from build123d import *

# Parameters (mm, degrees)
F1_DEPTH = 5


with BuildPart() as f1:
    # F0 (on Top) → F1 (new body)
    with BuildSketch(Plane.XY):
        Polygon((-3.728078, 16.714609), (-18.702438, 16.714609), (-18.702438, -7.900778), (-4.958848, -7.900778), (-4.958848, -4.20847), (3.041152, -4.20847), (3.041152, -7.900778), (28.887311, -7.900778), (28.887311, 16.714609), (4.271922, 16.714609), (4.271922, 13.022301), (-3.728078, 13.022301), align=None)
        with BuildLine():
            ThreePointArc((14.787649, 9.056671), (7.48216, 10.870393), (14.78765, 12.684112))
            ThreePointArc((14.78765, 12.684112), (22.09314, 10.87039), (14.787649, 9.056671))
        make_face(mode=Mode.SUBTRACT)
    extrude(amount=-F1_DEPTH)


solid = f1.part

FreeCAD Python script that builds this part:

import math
import FreeCAD as App
import Part
import Sketcher
Q = App.Units.Quantity


def add_polygon(sketch, points):
    """Adds a closed chain of lines whose ends are joined by coincident constraints."""
    first, n = sketch.GeometryCount, len(points)
    for a, b in zip(points, points[1:] + points[:1]):
        sketch.addGeometry(Part.LineSegment(App.Vector(*a, 0), App.Vector(*b, 0)), False)
    for i in range(n):
        sketch.addConstraint(Sketcher.Constraint("Coincident", first + i, 2, first + (i + 1) % n, 1))

doc = App.newDocument("Part")
body = doc.addObject("PartDesign::Body", "Body")

# Sketch on XY plane
sketch1 = body.newObject("Sketcher::SketchObject", "Sketch")
sketch1.AttachmentSupport = (doc.getObject("XY_Plane"), [""])
sketch1.MapMode = "FlatFace"
add_polygon(sketch1, [(-3.728078, 16.714609), (-18.702438, 16.714609), (-18.702438, -7.900778), (-4.958848, -7.900778), (-4.958848, -4.20847), (3.041152, -4.20847), (3.041152, -7.900778), (28.887311, -7.900778), (28.887311, 16.714609), (4.271922, 16.714609), (4.271922, 13.022301), (-3.728078, 13.022301)])  # lines 0-11
sketch1.addGeometry(Part.ArcOfCircle(Part.Circle(App.Vector(18.21525, 10.870391, 0), App.Vector(0, 0, 1), 3.87789), math.radians(-152.114388), math.radians(152.114356)), False)  # 12
sketch1.addGeometry(Part.ArcOfCircle(Part.Circle(App.Vector(11.360049, 10.870392, 0), App.Vector(0, 0, 1), 3.877889), math.radians(27.885616), math.radians(332.114353)), False)  # 13
sketch1.addConstraint(Sketcher.Constraint("Coincident", 12, 1, 13, 2))
sketch1.addConstraint(Sketcher.Constraint("Coincident", 13, 1, 12, 2))
sketch1.addConstraint(Sketcher.Constraint("Horizontal", 0))
sketch1.addConstraint(Sketcher.Constraint("Vertical", 1))
sketch1.addConstraint(Sketcher.Constraint("Horizontal", 2))
sketch1.addConstraint(Sketcher.Constraint("Vertical", 3))
sketch1.addConstraint(Sketcher.Constraint("Horizontal", 4))
sketch1.addConstraint(Sketcher.Constraint("Vertical", 5))
sketch1.addConstraint(Sketcher.Constraint("Horizontal", 6))
sketch1.addConstraint(Sketcher.Constraint("Vertical", 7))
sketch1.addConstraint(Sketcher.Constraint("Horizontal", 8))
sketch1.addConstraint(Sketcher.Constraint("Vertical", 9))
sketch1.addConstraint(Sketcher.Constraint("Horizontal", 10))
sketch1.addConstraint(Sketcher.Constraint("Vertical", 11))
sketch1.addConstraint(Sketcher.Constraint("Equal", 12, 13))
sketch1.addConstraint(Sketcher.Constraint("Horizontal", 12, 3, 13, 3))
sketch1.addConstraint(Sketcher.Constraint("Horizontal", 2, 2, 5, 2))
sketch1.addConstraint(Sketcher.Constraint("Horizontal", 0, 2, 7, 2))
sketch1.addConstraint(Sketcher.Constraint("Equal", 4, 10))
sketch1.addConstraint(Sketcher.Constraint("Equal", 5, 9))
sketch1.addConstraint(Sketcher.Constraint("DistanceX", 4, 1, 4, 2, Q("8 mm")))
sketch1.addConstraint(Sketcher.Constraint("Radius", 12, Q("3.87789 mm")))
sketch1.addConstraint(Sketcher.Constraint("DistanceX", 0, 2, 0, 1, Q("14.97436 mm")))
sketch1.addConstraint(Sketcher.Constraint("DistanceX", 2, 1, 2, 2, Q("13.74359 mm")))
sketch1.addConstraint(Sketcher.Constraint("DistanceX", 6, 1, 6, 2, Q("25.846159 mm")))
sketch1.addConstraint(Sketcher.Constraint("DistanceY", -1, 1, 9, 2, Q("13.022301 mm")))
sketch1.addConstraint(Sketcher.Constraint("DistanceX", 13, 3, 12, 3, Q("6.855201 mm")))
sketch1.addConstraint(Sketcher.Constraint("DistanceX", 2, 2, 12, 3, Q("23.174098 mm")))
sketch1.addConstraint(Sketcher.Constraint("DistanceY", 1, 2, 1, 1, Q("24.615387 mm")))
sketch1.addConstraint(Sketcher.Constraint("DistanceY", 3, 1, 3, 2, Q("3.692308 mm")))
sketch1.addConstraint(Sketcher.Constraint("DistanceX", -1, 1, 12, 3, Q("18.21525 mm")))
sketch1.addConstraint(Sketcher.Constraint("DistanceY", -1, 1, 12, 3, Q("10.870391 mm")))
pad1 = body.newObject("PartDesign::Pad", "Pad")
pad1.Profile = sketch1
pad1.Length = 5
pad1.Reversed = True

doc.recompute()
